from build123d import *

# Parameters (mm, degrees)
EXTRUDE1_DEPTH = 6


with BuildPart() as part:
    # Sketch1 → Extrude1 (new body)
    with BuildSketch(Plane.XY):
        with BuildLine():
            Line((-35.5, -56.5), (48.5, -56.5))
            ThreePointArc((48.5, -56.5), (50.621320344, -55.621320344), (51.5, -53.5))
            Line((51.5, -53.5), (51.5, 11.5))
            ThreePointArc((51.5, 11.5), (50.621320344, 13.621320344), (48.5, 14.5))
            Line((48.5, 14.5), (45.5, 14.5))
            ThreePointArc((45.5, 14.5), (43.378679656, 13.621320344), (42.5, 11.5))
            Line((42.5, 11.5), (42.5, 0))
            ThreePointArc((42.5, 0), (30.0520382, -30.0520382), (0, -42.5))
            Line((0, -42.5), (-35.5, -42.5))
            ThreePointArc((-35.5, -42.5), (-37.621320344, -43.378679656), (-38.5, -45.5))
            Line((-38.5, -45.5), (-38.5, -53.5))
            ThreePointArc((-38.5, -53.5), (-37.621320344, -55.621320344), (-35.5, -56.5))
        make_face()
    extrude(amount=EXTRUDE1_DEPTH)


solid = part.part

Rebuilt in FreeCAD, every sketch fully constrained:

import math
import FreeCAD as App
import Part
import Sketcher
from FreeCAD import Vector

doc = App.newDocument("Part")
params = doc.addObject("Spreadsheet::Sheet", "Params")
for row, (alias, value) in enumerate([
    ("sketch1_radius", "3 mm"),
    ("sketch1_radius2", "42.5 mm"),
    ("sketch1_width", "84 mm"),
    ("sketch1_width2", "3 mm"),
    ("sketch1_height", "65 mm"),
    ("pad1_length", "6 mm"),
], start=1):
    params.set(f"A{row}", alias)
    params.set(f"B{row}", "=" + value)
    params.setAlias(f"B{row}", alias)

body = doc.addObject("PartDesign::Body", "Body")

# Sketch on XY plane
sketch1 = body.newObject("Sketcher::SketchObject", "Sketch")
sketch1.AttachmentSupport = (doc.getObject("XY_Plane"), [""])
sketch1.MapMode = "FlatFace"
sketch1.addGeometry([
    Part.LineSegment(Vector(-35.5, -56.5, 0), Vector(48.5, -56.5, 0)),  # 0
    Part.ArcOfCircle(Part.Circle(Vector(48.5, -53.5, 0), Vector(0, 0, 1), 3), math.radians(-90), math.radians(0)),  # 1
    Part.LineSegment(Vector(51.5, -53.5, 0), Vector(51.5, 11.5, 0)),  # 2
    Part.ArcOfCircle(Part.Circle(Vector(48.5, 11.5, 0), Vector(0, 0, 1), 3), math.radians(0), math.radians(90)),  # 3
    Part.LineSegment(Vector(48.5, 14.5, 0), Vector(45.5, 14.5, 0)),  # 4
    Part.ArcOfCircle(Part.Circle(Vector(45.5, 11.5, 0), Vector(0, 0, 1), 3), math.radians(90), math.radians(180)),  # 5
    Part.LineSegment(Vector(42.5, 11.5, 0), Vector(42.5, 0, 0)),  # 6
    Part.ArcOfCircle(Part.Circle(Vector(0, 0, 0), Vector(0, 0, 1), 42.5), math.radians(-90), math.radians(0)),  # 7
    Part.LineSegment(Vector(0, -42.5, 0), Vector(-35.5, -42.5, 0)),  # 8
    Part.ArcOfCircle(Part.Circle(Vector(-35.5, -45.5, 0), Vector(0, 0, 1), 3), math.radians(90), math.radians(180)),  # 9
    Part.LineSegment(Vector(-38.5, -45.5, 0), Vector(-38.5, -53.5, 0)),  # 10
    Part.ArcOfCircle(Part.Circle(Vector(-35.5, -53.5, 0), Vector(0, 0, 1), 3), math.radians(180), math.radians(270)),  # 11
], False)
sketch1.addConstraint([
    Sketcher.Constraint("Tangent", 0, 2, 1, 1),
    Sketcher.Constraint("Tangent", 1, 2, 2, 1),
    Sketcher.Constraint("Tangent", 2, 2, 3, 1),
    Sketcher.Constraint("Tangent", 3, 2, 4, 1),
    Sketcher.Constraint("Tangent", 4, 2, 5, 1),
    Sketcher.Constraint("Tangent", 5, 2, 6, 1),
    Sketcher.Constraint("Tangent", 6, 2, 7, 2),
    Sketcher.Constraint("Tangent", 7, 1, 8, 1),
    Sketcher.Constraint("Tangent", 8, 2, 9, 1),
    Sketcher.Constraint("Tangent", 9, 2, 10, 1),
    Sketcher.Constraint("Tangent", 10, 2, 11, 1),
    Sketcher.Constraint("Tangent", 11, 2, 0, 1),
    Sketcher.Constraint("Horizontal", 0),
    Sketcher.Constraint("Vertical", 2),
    Sketcher.Constraint("Horizontal", 4),
    Sketcher.Constraint("Vertical", 6),
    Sketcher.Constraint("Horizontal", 8),
    Sketcher.Constraint("Vertical", 10),
    Sketcher.Constraint("Coincident", 7, 3, -1, 1),
    Sketcher.Constraint("Equal", 1, 3),
    Sketcher.Constraint("Equal", 3, 5),
    Sketcher.Constraint("Equal", 5, 9),
    Sketcher.Constraint("Equal", 9, 11),
    Sketcher.Constraint("Radius", 1, 3.0),
    Sketcher.Constraint("Radius", 7, 42.5),
    Sketcher.Constraint("DistanceX", 0, 1, 0, 2, 84.0),
    Sketcher.Constraint("DistanceX", 4, 2, 4, 1, 3.0),
    Sketcher.Constraint("DistanceY", 2, 1, 2, 2, 65.0),
    Sketcher.Constraint("DistanceY", 10, 2, 10, 1, 8.0),
])
sketch1.setExpression("Constraints[23]", "Params.sketch1_radius")
sketch1.setExpression("Constraints[24]", "Params.sketch1_radius2")
sketch1.setExpression("Constraints[25]", "Params.sketch1_width")
sketch1.setExpression("Constraints[26]", "Params.sketch1_width2")
sketch1.setExpression("Constraints[27]", "Params.sketch1_height")
pad1 = body.newObject("PartDesign::Pad", "Pad")
pad1.Profile = sketch1
pad1.setExpression("Length", "Params.pad1_length")

doc.recompute()
